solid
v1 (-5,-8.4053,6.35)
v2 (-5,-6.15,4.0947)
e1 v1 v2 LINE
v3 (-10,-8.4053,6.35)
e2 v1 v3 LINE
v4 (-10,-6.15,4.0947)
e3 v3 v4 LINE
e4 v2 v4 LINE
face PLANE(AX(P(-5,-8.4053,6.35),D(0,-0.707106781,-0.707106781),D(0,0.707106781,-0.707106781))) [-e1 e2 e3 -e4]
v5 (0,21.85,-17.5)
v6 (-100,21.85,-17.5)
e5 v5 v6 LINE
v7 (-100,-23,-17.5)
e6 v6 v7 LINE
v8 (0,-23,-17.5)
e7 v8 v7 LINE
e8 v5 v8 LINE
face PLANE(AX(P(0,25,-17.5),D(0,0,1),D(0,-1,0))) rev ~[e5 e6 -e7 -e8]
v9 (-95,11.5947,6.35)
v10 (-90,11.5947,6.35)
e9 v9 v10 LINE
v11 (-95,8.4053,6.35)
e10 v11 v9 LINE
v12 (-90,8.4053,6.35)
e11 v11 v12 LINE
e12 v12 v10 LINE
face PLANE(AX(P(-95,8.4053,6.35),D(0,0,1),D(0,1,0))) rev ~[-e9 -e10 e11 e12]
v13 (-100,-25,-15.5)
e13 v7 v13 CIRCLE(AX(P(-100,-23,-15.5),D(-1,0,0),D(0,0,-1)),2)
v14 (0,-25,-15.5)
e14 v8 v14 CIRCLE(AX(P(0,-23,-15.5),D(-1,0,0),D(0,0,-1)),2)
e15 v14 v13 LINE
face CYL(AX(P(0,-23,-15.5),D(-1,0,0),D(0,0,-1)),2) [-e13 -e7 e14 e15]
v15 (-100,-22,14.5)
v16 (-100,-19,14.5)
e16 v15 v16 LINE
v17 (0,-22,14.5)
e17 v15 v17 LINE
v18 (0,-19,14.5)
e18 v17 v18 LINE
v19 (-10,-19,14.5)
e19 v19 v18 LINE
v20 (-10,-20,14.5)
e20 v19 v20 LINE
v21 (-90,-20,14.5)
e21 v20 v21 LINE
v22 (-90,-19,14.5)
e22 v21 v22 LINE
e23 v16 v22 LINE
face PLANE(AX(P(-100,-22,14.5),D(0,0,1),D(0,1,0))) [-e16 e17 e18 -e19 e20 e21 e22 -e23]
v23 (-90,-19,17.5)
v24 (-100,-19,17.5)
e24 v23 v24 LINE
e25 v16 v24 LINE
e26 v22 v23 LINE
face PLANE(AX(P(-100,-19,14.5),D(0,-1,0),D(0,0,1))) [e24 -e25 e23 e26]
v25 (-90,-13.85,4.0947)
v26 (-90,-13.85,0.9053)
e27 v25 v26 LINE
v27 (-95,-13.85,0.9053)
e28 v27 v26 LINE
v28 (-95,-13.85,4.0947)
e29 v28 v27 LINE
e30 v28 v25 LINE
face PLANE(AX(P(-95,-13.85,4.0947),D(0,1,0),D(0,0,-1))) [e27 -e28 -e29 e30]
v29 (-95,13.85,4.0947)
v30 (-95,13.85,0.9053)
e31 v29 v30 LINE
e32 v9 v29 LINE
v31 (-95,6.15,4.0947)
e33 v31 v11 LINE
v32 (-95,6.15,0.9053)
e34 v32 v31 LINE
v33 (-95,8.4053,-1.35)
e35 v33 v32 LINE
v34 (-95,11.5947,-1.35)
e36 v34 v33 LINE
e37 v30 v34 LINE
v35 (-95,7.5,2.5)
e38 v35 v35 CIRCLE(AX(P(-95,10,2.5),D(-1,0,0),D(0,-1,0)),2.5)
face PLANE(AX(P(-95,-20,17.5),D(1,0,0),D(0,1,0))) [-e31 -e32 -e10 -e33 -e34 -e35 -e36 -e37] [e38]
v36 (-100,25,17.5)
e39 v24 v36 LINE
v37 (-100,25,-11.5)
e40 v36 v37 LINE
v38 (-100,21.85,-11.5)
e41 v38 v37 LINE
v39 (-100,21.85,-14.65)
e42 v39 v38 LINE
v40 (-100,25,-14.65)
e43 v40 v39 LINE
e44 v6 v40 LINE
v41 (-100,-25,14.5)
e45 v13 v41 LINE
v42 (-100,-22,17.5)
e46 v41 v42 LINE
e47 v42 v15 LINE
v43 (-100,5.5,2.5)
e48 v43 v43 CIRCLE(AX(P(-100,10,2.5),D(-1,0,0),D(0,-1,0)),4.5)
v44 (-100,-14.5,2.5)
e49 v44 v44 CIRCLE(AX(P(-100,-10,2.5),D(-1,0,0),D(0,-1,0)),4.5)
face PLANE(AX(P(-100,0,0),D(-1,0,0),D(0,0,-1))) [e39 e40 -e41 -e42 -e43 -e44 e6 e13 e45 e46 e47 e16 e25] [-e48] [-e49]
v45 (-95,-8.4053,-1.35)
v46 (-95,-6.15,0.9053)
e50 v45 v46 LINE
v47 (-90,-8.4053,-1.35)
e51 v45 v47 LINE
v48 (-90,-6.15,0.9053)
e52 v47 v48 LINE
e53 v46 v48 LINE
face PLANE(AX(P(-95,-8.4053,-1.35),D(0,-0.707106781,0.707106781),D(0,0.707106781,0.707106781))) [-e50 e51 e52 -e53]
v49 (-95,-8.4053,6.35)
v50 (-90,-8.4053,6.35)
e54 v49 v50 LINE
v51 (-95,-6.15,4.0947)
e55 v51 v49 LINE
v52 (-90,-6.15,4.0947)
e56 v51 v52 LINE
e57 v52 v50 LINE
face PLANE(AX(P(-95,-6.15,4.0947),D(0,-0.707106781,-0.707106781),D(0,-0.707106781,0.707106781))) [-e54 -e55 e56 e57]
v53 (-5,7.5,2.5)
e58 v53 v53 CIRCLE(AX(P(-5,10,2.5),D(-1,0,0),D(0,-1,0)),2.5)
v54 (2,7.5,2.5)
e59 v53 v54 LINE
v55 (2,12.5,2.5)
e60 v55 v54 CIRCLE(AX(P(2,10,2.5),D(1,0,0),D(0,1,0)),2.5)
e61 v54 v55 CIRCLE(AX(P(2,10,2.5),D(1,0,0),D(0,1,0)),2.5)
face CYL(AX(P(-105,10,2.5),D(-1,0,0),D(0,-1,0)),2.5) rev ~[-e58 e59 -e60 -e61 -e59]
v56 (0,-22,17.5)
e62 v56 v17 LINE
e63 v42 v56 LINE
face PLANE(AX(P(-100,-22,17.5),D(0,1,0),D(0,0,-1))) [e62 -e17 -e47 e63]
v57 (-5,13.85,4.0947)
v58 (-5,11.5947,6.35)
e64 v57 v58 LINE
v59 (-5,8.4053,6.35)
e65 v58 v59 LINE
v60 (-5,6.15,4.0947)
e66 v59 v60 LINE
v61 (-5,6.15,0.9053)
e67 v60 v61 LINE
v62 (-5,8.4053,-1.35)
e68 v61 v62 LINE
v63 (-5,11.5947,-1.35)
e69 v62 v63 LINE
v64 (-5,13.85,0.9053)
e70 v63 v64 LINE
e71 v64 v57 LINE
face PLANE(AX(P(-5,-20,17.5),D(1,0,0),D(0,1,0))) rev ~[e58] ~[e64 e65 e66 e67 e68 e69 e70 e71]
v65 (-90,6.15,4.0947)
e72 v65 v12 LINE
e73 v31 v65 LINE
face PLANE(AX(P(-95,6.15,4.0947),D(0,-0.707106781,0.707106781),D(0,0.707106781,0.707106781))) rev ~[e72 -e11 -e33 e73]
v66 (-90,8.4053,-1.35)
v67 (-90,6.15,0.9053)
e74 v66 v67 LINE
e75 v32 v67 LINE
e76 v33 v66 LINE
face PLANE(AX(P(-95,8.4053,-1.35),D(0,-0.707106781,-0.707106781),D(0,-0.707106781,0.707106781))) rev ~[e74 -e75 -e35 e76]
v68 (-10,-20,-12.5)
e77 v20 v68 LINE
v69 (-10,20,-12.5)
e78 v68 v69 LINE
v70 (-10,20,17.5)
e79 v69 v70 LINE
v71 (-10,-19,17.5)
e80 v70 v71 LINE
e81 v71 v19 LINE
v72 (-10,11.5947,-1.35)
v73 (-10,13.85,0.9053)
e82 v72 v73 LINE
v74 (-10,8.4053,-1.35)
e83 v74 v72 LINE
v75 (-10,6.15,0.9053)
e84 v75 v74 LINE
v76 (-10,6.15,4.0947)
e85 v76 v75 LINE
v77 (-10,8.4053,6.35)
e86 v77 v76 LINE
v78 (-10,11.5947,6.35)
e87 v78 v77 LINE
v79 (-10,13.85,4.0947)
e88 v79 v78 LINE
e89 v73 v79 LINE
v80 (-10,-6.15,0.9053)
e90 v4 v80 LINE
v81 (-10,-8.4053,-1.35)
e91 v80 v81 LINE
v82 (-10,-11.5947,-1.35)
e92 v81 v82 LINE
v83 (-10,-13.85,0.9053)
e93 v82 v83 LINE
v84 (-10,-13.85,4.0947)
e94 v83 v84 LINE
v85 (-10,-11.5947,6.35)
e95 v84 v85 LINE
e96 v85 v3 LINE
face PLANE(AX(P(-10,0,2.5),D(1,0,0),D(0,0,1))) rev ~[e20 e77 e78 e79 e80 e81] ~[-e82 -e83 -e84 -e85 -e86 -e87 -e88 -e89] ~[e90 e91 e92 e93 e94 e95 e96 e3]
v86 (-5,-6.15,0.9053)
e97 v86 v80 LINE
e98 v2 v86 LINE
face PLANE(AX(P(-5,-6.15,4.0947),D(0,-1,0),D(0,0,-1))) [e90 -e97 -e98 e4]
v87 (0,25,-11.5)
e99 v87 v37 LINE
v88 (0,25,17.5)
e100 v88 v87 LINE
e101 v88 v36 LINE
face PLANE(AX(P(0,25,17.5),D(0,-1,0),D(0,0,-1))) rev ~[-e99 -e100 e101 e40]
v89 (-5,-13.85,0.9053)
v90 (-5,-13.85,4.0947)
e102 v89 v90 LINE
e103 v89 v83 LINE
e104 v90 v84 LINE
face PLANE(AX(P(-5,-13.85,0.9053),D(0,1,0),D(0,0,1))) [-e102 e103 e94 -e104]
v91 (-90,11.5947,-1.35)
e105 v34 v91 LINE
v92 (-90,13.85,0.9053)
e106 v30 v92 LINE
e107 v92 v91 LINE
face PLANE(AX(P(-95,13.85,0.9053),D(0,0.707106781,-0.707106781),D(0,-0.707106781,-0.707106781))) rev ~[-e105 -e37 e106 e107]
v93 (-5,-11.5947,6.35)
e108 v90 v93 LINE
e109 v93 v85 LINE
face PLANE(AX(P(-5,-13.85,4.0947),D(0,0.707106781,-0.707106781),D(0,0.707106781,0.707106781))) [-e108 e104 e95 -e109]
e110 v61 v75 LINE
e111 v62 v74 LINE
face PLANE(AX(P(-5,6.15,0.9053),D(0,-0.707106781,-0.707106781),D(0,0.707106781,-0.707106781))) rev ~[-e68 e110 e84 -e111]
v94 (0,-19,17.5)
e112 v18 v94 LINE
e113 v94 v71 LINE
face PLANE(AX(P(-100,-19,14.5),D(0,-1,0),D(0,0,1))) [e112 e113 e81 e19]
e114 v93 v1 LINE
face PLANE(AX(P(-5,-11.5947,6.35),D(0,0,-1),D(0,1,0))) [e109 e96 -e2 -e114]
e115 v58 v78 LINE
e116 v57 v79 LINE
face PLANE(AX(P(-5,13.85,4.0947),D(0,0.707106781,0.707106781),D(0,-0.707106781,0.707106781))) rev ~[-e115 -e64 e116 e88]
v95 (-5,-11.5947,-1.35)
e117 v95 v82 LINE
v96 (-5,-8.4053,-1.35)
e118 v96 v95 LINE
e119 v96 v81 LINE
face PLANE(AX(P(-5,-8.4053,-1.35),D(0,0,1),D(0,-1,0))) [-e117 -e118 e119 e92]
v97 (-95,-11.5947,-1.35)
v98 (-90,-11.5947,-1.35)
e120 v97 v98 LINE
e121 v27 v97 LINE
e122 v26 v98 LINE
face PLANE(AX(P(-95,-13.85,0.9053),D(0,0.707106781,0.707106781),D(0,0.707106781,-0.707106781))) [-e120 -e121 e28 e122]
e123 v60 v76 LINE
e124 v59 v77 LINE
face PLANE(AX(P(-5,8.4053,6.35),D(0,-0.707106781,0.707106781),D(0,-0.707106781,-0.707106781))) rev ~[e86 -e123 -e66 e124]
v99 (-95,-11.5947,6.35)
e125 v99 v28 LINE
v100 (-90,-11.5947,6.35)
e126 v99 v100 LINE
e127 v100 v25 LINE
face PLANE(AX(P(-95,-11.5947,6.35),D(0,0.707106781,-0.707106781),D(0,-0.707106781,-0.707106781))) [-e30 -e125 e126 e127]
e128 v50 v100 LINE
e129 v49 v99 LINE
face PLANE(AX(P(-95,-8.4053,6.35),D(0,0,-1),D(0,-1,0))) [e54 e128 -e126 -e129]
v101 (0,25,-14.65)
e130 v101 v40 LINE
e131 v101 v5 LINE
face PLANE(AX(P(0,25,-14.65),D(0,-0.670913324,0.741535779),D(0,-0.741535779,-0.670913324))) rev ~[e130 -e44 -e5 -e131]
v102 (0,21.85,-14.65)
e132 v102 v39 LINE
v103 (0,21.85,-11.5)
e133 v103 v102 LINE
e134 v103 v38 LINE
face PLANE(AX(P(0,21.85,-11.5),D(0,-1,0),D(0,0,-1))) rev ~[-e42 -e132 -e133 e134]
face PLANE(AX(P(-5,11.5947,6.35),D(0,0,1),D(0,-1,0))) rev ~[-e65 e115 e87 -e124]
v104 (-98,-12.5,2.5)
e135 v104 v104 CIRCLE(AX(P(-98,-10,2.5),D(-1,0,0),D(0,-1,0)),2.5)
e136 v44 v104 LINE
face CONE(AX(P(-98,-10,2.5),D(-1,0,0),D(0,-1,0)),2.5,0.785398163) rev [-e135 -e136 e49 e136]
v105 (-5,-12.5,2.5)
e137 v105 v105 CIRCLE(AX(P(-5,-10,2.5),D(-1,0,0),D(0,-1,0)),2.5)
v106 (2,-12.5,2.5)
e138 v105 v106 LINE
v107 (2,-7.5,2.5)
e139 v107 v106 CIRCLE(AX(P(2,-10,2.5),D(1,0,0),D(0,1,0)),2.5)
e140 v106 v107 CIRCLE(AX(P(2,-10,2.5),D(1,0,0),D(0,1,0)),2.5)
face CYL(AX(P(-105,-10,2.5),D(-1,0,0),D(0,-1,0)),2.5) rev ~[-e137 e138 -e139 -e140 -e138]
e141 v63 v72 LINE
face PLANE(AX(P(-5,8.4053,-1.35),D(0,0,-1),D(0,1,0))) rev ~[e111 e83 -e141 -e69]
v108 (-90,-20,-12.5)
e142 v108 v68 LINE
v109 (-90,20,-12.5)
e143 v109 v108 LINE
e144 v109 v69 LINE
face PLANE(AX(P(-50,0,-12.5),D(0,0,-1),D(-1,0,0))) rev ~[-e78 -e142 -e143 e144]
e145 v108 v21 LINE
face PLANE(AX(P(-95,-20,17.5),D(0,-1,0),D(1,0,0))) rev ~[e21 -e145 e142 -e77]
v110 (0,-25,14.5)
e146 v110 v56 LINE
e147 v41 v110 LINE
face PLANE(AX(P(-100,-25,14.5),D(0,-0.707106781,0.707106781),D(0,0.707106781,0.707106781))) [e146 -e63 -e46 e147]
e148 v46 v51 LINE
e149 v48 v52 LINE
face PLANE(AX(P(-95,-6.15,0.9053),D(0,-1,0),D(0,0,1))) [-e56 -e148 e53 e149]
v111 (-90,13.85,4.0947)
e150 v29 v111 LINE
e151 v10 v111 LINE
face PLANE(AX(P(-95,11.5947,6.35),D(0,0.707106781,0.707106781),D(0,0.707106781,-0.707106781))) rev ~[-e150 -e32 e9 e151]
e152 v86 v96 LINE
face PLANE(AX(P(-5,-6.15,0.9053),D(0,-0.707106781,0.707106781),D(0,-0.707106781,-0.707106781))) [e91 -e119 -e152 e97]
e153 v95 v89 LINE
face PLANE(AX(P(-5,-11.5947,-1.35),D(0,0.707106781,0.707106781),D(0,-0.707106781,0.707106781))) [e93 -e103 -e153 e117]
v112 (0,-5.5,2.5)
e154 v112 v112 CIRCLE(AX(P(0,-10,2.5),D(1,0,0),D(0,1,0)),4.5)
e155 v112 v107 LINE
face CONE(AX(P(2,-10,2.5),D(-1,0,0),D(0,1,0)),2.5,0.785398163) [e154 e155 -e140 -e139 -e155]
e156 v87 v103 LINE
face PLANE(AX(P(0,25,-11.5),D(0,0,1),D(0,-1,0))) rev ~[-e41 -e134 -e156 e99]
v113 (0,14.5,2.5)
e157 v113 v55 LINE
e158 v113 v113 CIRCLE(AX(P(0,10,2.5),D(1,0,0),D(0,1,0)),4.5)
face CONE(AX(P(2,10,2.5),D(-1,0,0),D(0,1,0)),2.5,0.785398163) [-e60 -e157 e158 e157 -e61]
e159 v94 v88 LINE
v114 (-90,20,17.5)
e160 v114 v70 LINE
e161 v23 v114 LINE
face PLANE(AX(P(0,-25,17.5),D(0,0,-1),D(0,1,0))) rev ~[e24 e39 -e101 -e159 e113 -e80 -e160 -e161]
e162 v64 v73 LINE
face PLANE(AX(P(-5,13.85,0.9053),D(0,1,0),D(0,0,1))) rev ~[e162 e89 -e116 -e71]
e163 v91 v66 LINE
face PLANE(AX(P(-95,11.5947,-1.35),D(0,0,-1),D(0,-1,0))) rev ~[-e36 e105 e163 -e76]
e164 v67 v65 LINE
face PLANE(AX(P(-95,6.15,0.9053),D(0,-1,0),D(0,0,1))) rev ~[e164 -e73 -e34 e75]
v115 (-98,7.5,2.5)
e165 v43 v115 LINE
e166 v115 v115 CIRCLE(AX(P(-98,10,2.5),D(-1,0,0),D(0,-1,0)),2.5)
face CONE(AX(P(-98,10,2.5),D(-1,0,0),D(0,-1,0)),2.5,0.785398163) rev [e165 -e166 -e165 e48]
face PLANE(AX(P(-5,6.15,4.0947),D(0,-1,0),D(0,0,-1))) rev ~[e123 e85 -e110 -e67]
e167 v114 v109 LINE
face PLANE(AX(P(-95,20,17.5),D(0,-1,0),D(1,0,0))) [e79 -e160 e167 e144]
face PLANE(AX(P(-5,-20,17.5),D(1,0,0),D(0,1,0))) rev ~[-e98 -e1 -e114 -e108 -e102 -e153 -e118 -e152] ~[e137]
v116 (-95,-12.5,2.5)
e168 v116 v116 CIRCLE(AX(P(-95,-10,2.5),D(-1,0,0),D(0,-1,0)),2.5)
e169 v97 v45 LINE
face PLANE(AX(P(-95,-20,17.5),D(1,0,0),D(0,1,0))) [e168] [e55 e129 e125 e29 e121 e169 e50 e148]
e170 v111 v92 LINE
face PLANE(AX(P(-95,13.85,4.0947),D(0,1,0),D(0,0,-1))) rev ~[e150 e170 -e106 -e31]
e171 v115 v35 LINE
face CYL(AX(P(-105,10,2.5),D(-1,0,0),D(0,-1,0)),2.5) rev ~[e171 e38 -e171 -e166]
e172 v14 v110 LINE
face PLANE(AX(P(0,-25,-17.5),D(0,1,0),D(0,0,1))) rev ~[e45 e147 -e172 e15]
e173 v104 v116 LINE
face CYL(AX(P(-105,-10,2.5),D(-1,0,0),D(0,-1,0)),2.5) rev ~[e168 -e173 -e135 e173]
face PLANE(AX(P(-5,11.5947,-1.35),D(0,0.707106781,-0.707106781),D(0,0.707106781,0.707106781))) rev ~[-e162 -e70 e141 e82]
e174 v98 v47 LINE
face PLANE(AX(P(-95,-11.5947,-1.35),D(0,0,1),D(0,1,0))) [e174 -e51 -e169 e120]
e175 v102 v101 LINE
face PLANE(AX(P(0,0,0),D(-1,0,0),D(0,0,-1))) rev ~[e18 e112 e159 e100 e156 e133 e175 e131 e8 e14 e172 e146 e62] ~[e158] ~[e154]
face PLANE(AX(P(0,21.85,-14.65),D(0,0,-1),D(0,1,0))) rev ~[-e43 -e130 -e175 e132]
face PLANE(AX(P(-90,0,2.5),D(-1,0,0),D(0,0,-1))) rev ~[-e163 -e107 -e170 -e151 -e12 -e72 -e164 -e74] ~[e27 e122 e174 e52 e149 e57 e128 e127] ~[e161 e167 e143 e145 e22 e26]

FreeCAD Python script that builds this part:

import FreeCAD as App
import Part
import Sketcher

V = App.Vector
Q = App.Units.Quantity


def edges_at(feature, points):
    """Names of the edges that pass closest to the given points."""
    edges = feature.Shape.Edges
    near = lambda p: min(range(len(edges)), key=lambda i: edges[i].distToShape(Part.Vertex(*p))[0])
    return sorted({f"Edge{near(p) + 1}" for p in points})

doc = App.newDocument("Part")
body = doc.addObject("PartDesign::Body", "Body")

# Sketch on YZ plane
sketch1 = body.newObject("Sketcher::SketchObject", "Sketch")
sketch1.AttachmentSupport = (doc.getObject("YZ_Plane"), [""])
sketch1.MapMode = "FlatFace"
sketch1.addGeometry(Part.LineSegment(V(25, -17.5, 0), V(-25, -17.5, 0)), False)
sketch1.addGeometry(Part.LineSegment(V(-25, -17.5, 0), V(-25, 17.5, 0)), False)
sketch1.addGeometry(Part.LineSegment(V(-25, 17.5, 0), V(25, 17.5, 0)), False)
sketch1.addGeometry(Part.LineSegment(V(25, 17.5, 0), V(25, -17.5, 0)), False)
sketch1.addConstraint(Sketcher.Constraint("Coincident", 0, 2, 1, 1))
sketch1.addConstraint(Sketcher.Constraint("Coincident", 1, 2, 2, 1))
sketch1.addConstraint(Sketcher.Constraint("Coincident", 2, 2, 3, 1))
sketch1.addConstraint(Sketcher.Constraint("Coincident", 3, 2, 0, 1))
sketch1.addConstraint(Sketcher.Constraint("Horizontal", 0))
sketch1.addConstraint(Sketcher.Constraint("Vertical", 1))
sketch1.addConstraint(Sketcher.Constraint("Horizontal", 2))
sketch1.addConstraint(Sketcher.Constraint("Vertical", 3))
sketch1.addConstraint(Sketcher.Constraint("Symmetric", 0, 2, 2, 2, -1, 1))
sketch1.addConstraint(Sketcher.Constraint("DistanceX", 0, 2, 0, 1, 50.0))
sketch1.addConstraint(Sketcher.Constraint("DistanceY", 1, 1, 1, 2, 35.0))
pad1 = body.newObject("PartDesign::Pad", "Pad")
pad1.Profile = sketch1
pad1.Length = 100
pad1.Reversed = True

# Sketch on XY plane
sketch2 = body.newObject("Sketcher::SketchObject", "Sketch001")
sketch2.AttachmentSupport = (doc.getObject("XY_Plane"), [""])
sketch2.MapMode = "FlatFace"
sketch2.AttachmentOffset = App.Placement(V(0, 0, 17.5), App.Rotation())
sketch2.addGeometry(Part.LineSegment(V(-5, 20, 0), V(-95, 20, 0)), False)
sketch2.addGeometry(Part.LineSegment(V(-95, 20, 0), V(-95, -20, 0)), False)
sketch2.addGeometry(Part.LineSegment(V(-95, -20, 0), V(-5, -20, 0)), False)
sketch2.addGeometry(Part.LineSegment(V(-5, -20, 0), V(-5, 20, 0)), False)
sketch2.addConstraint(Sketcher.Constraint("Coincident", 0, 2, 1, 1))
sketch2.addConstraint(Sketcher.Constraint("Coincident", 1, 2, 2, 1))
sketch2.addConstraint(Sketcher.Constraint("Coincident", 2, 2, 3, 1))
sketch2.addConstraint(Sketcher.Constraint("Coincident", 3, 2, 0, 1))
sketch2.addConstraint(Sketcher.Constraint("Horizontal", 0))
sketch2.addConstraint(Sketcher.Constraint("Vertical", 1))
sketch2.addConstraint(Sketcher.Constraint("Horizontal", 2))
sketch2.addConstraint(Sketcher.Constraint("Vertical", 3))
sketch2.addConstraint(Sketcher.Constraint("DistanceX", 0, 2, 0, 1, 90.0))
sketch2.addConstraint(Sketcher.Constraint("DistanceY", 1, 2, 1, 1, 40.0))
sketch2.addConstraint(Sketcher.Constraint("DistanceX", 0, 2, -1, 1, 95.0))
sketch2.addConstraint(Sketcher.Constraint("DistanceY", -1, 1, 0, 2, 20.0))
pocket1 = body.newObject("PartDesign::Pocket", "Pocket")
pocket1.Profile = sketch2
pocket1.Length = 30

# Sketch on YZ plane
sketch3 = body.newObject("Sketcher::SketchObject", "Sketch002")
sketch3.AttachmentSupport = (doc.getObject("YZ_Plane"), [""])
sketch3.MapMode = "FlatFace"
sketch3.AttachmentOffset = App.Placement(V(0, 0, -5), App.Rotation())
sketch3.addGeometry(Part.LineSegment(V(20, -12.5, 0), V(-20, -12.5, 0)), False)
sketch3.addGeometry(Part.LineSegment(V(-20, -12.5, 0), V(-20, 17.5, 0)), False)
sketch3.addGeometry(Part.LineSegment(V(-20, 17.5, 0), V(20, 17.5, 0)), False)
sketch3.addGeometry(Part.LineSegment(V(20, 17.5, 0), V(20, -12.5, 0)), False)
sketch3.addGeometry(Part.LineSegment(V(-8.4053, 6.35, 0), V(-11.5947, 6.35, 0)), False)
sketch3.addGeometry(Part.LineSegment(V(-11.5947, 6.35, 0), V(-13.85, 4.0947, 0)), False)
sketch3.addGeometry(Part.LineSegment(V(-13.85, 4.0947, 0), V(-13.85, 0.9053, 0)), False)
sketch3.addGeometry(Part.LineSegment(V(-13.85, 0.9053, 0), V(-11.5947, -1.35, 0)), False)
sketch3.addGeometry(Part.LineSegment(V(-11.5947, -1.35, 0), V(-8.4053, -1.35, 0)), False)
sketch3.addGeometry(Part.LineSegment(V(-8.4053, -1.35, 0), V(-6.15, 0.9053, 0)), False)
sketch3.addGeometry(Part.LineSegment(V(-6.15, 0.9053, 0), V(-6.15, 4.0947, 0)), False)
sketch3.addGeometry(Part.LineSegment(V(-6.15, 4.0947, 0), V(-8.4053, 6.35, 0)), False)
sketch3.addGeometry(Part.LineSegment(V(13.85, 4.0947, 0), V(11.5947, 6.35, 0)), False)
sketch3.addGeometry(Part.LineSegment(V(11.5947, 6.35, 0), V(8.4053, 6.35, 0)), False)
sketch3.addGeometry(Part.LineSegment(V(8.4053, 6.35, 0), V(6.15, 4.0947, 0)), False)
sketch3.addGeometry(Part.LineSegment(V(6.15, 4.0947, 0), V(6.15, 0.9053, 0)), False)
sketch3.addGeometry(Part.LineSegment(V(6.15, 0.9053, 0), V(8.4053, -1.35, 0)), False)
sketch3.addGeometry(Part.LineSegment(V(8.4053, -1.35, 0), V(11.5947, -1.35, 0)), False)
sketch3.addGeometry(Part.LineSegment(V(11.5947, -1.35, 0), V(13.85, 0.9053, 0)), False)
sketch3.addGeometry(Part.LineSegment(V(13.85, 0.9053, 0), V(13.85, 4.0947, 0)), False)
sketch3.addConstraint(Sketcher.Constraint("Coincident", 0, 2, 1, 1))
sketch3.addConstraint(Sketcher.Constraint("Coincident", 1, 2, 2, 1))
sketch3.addConstraint(Sketcher.Constraint("Coincident", 2, 2, 3, 1))
sketch3.addConstraint(Sketcher.Constraint("Coincident", 3, 2, 0, 1))
sketch3.addConstraint(Sketcher.Constraint("Coincident", 4, 2, 5, 1))
sketch3.addConstraint(Sketcher.Constraint("Coincident", 5, 2, 6, 1))
sketch3.addConstraint(Sketcher.Constraint("Coincident", 6, 2, 7, 1))
sketch3.addConstraint(Sketcher.Constraint("Coincident", 7, 2, 8, 1))
sketch3.addConstraint(Sketcher.Constraint("Coincident", 8, 2, 9, 1))
sketch3.addConstraint(Sketcher.Constraint("Coincident", 9, 2, 10, 1))
sketch3.addConstraint(Sketcher.Constraint("Coincident", 10, 2, 11, 1))
sketch3.addConstraint(Sketcher.Constraint("Coincident", 11, 2, 4, 1))
sketch3.addConstraint(Sketcher.Constraint("Coincident", 12, 2, 13, 1))
sketch3.addConstraint(Sketcher.Constraint("Coincident", 13, 2, 14, 1))
sketch3.addConstraint(Sketcher.Constraint("Coincident", 14, 2, 15, 1))
sketch3.addConstraint(Sketcher.Constraint("Coincident", 15, 2, 16, 1))
sketch3.addConstraint(Sketcher.Constraint("Coincident", 16, 2, 17, 1))
sketch3.addConstraint(Sketcher.Constraint("Coincident", 17, 2, 18, 1))
sketch3.addConstraint(Sketcher.Constraint("Coincident", 18, 2, 19, 1))
sketch3.addConstraint(Sketcher.Constraint("Coincident", 19, 2, 12, 1))
sketch3.addConstraint(Sketcher.Constraint("Horizontal", 0))
sketch3.addConstraint(Sketcher.Constraint("Vertical", 1))
sketch3.addConstraint(Sketcher.Constraint("Horizontal", 2))
sketch3.addConstraint(Sketcher.Constraint("Vertical", 3))
sketch3.addConstraint(Sketcher.Constraint("Horizontal", 4))
sketch3.addConstraint(Sketcher.Constraint("Vertical", 6))
sketch3.addConstraint(Sketcher.Constraint("Horizontal", 8))
sketch3.addConstraint(Sketcher.Constraint("Vertical", 10))
sketch3.addConstraint(Sketcher.Constraint("Horizontal", 13))
sketch3.addConstraint(Sketcher.Constraint("Vertical", 15))
sketch3.addConstraint(Sketcher.Constraint("Horizontal", 17))
sketch3.addConstraint(Sketcher.Constraint("Vertical", 19))
sketch3.addConstraint(Sketcher.Constraint("Symmetric", 4, 2, 12, 2, -2))
sketch3.addConstraint(Sketcher.Constraint("Symmetric", 10, 2, 14, 2, -2))
sketch3.addConstraint(Sketcher.Constraint("Symmetric", 8, 2, 16, 2, -2))
sketch3.addConstraint(Sketcher.Constraint("Symmetric", 6, 2, 18, 2, -2))
sketch3.addConstraint(Sketcher.Constraint("Perpendicular", 5, 7))
sketch3.addConstraint(Sketcher.Constraint("Perpendicular", 7, 9))
sketch3.addConstraint(Sketcher.Constraint("Perpendicular", 9, 11))
sketch3.addConstraint(Sketcher.Constraint("Parallel", 11, 12))
sketch3.addConstraint(Sketcher.Constraint("Perpendicular", 12, 14))
sketch3.addConstraint(Sketcher.Constraint("Perpendicular", 14, 16))
sketch3.addConstraint(Sketcher.Constraint("Perpendicular", 16, 18))
sketch3.addConstraint(Sketcher.Constraint("Horizontal", 6, 2, 9, 2))
sketch3.addConstraint(Sketcher.Constraint("Horizontal", 5, 2, 10, 2))
sketch3.addConstraint(Sketcher.Constraint("Horizontal", 9, 2, 15, 2))
sketch3.addConstraint(Sketcher.Constraint("Vertical", 4, 2, 7, 2))
sketch3.addConstraint(Sketcher.Constraint("Equal", 17, 6))
sketch3.addConstraint(Sketcher.Constraint("DistanceX", 0, 2, 0, 1, 40.0))
sketch3.addConstraint(Sketcher.Constraint("DistanceY", 1, 1, 1, 2, 30.0))
sketch3.addConstraint(Sketcher.Constraint("DistanceX", 0, 2, -1, 1, 20.0))
sketch3.addConstraint(Sketcher.Constraint("DistanceX", 11, 2, 12, 2, 20.0))
sketch3.addConstraint(Sketcher.Constraint("DistanceY", 0, 2, -1, 1, 12.5))
sketch3.addConstraint(Sketcher.Constraint("DistanceY", 7, 2, 4, 2, 7.7))
sketch3.addConstraint(Sketcher.Constraint("DistanceY", -1, 1, 4, 2, 6.35))
sketch3.addConstraint(Sketcher.Constraint("DistanceX", 4, 2, 4, 1, 3.1894))
pad2 = body.newObject("PartDesign::Pad", "Pad001")
pad2.Profile = sketch3
pad2.Length = 5
pad2.Reversed = True

# Sketch on YZ plane
sketch4 = body.newObject("Sketcher::SketchObject", "Sketch003")
sketch4.AttachmentSupport = (doc.getObject("YZ_Plane"), [""])
sketch4.MapMode = "FlatFace"
sketch4.addGeometry(Part.Circle(V(-10, 2.5, 0), V(0, 0, 1), 2.5), False)
sketch4.addGeometry(Part.Circle(V(10, 2.5, 0), V(0, 0, 1), 2.5), False)
sketch4.addConstraint(Sketcher.Constraint("Equal", 0, 1))
sketch4.addConstraint(Sketcher.Constraint("Symmetric", 0, 3, 1, 3, -2))
sketch4.addConstraint(Sketcher.Constraint("Diameter", 0, 5.0))
sketch4.addConstraint(Sketcher.Constraint("DistanceX", 0, 3, -1, 1, 10.0))
sketch4.addConstraint(Sketcher.Constraint("DistanceY", -1, 1, 0, 3, 2.5))
pad3 = body.newObject("PartDesign::Pad", "Pad002")
pad3.Profile = sketch4
pad3.Length = 5
doc.recompute()

chamfer = body.newObject("PartDesign::Chamfer", "Chamfer")
chamfer.Base = (pad3, edges_at(pad3, [(0, 7.5, 2.5), (0, -12.5, 2.5)]))
chamfer.Size = 2

# Sketch on YZ plane
sketch5 = body.newObject("Sketcher::SketchObject", "Sketch004")
sketch5.AttachmentSupport = (doc.getObject("YZ_Plane"), [""])
sketch5.MapMode = "FlatFace"
sketch5.AttachmentOffset = App.Placement(V(0, 0, -100), App.Rotation())
sketch5.addGeometry(Part.Circle(V(10, 2.5, 0), V(0, 0, 1), 2.5), False)
sketch5.addGeometry(Part.Circle(V(-10, 2.5, 0), V(0, 0, 1), 2.5), False)
sketch5.addConstraint(Sketcher.Constraint("Equal", 0, 1))
sketch5.addConstraint(Sketcher.Constraint("Symmetric", 0, 3, 1, 3, -2))
sketch5.addConstraint(Sketcher.Constraint("Diameter", 0, 5.0))
sketch5.addConstraint(Sketcher.Constraint("DistanceX", -1, 1, 0, 3, 10.0))
sketch5.addConstraint(Sketcher.Constraint("DistanceY", -1, 1, 0, 3, 2.5))
pad4 = body.newObject("PartDesign::Pad", "Pad003")
pad4.Profile = sketch5
pad4.Length = 5
pad4.Reversed = True

# Sketch on YZ plane
sketch6 = body.newObject("Sketcher::SketchObject", "Sketch005")
sketch6.AttachmentSupport = (doc.getObject("YZ_Plane"), [""])
sketch6.MapMode = "FlatFace"
sketch6.AttachmentOffset = App.Placement(V(0, 0, -105), App.Rotation())
sketch6.addGeometry(Part.Circle(V(10, 2.5, 0), V(0, 0, 1), 2.5), False)
sketch6.addGeometry(Part.Circle(V(-10, 2.5, 0), V(0, 0, 1), 2.5), False)
sketch6.addConstraint(Sketcher.Constraint("Equal", 0, 1))
sketch6.addConstraint(Sketcher.Constraint("Symmetric", 0, 3, 1, 3, -2))
sketch6.addConstraint(Sketcher.Constraint("Diameter", 0, 5.0))
sketch6.addConstraint(Sketcher.Constraint("DistanceX", -1, 1, 0, 3, 10.0))
sketch6.addConstraint(Sketcher.Constraint("DistanceY", -1, 1, 0, 3, 2.5))
pocket2 = body.newObject("PartDesign::Pocket", "Pocket001")
pocket2.Profile = sketch6
pocket2.Length = 159
pocket2.Reversed = True

# Sketch on YZ plane
sketch7 = body.newObject("Sketcher::SketchObject", "Sketch006")
sketch7.AttachmentSupport = (doc.getObject("YZ_Plane"), [""])
sketch7.MapMode = "FlatFace"
sketch7.AttachmentOffset = App.Placement(V(0, 0, -95), App.Rotation())
sketch7.addGeometry(Part.LineSegment(V(-20, -12.5, 0), V(20, -12.5, 0)), False)
sketch7.addGeometry(Part.LineSegment(V(20, -12.5, 0), V(20, 17.5, 0)), False)
sketch7.addGeometry(Part.LineSegment(V(20, 17.5, 0), V(-20, 17.5, 0)), False)
sketch7.addGeometry(Part.LineSegment(V(-20, 17.5, 0), V(-20, -12.5, 0)), False)
sketch7.addGeometry(Part.LineSegment(V(13.85, 0.9053, 0), V(11.5947, -1.35, 0)), False)
sketch7.addGeometry(Part.LineSegment(V(11.5947, -1.35, 0), V(8.4053, -1.35, 0)), False)
sketch7.addGeometry(Part.LineSegment(V(8.4053, -1.35, 0), V(6.15, 0.9053, 0)), False)
sketch7.addGeometry(Part.LineSegment(V(6.15, 0.9053, 0), V(6.15, 4.0947, 0)), False)
sketch7.addGeometry(Part.LineSegment(V(6.15, 4.0947, 0), V(8.4053, 6.35, 0)), False)
sketch7.addGeometry(Part.LineSegment(V(8.4053, 6.35, 0), V(11.5947, 6.35, 0)), False)
sketch7.addGeometry(Part.LineSegment(V(11.5947, 6.35, 0), V(13.85, 4.0947, 0)), False)
sketch7.addGeometry(Part.LineSegment(V(13.85, 4.0947, 0), V(13.85, 0.9053, 0)), False)
sketch7.addGeometry(Part.LineSegment(V(-6.15, 4.0947, 0), V(-6.15, 0.9053, 0)), False)
sketch7.addGeometry(Part.LineSegment(V(-6.15, 0.9053, 0), V(-8.4053, -1.35, 0)), False)
sketch7.addGeometry(Part.LineSegment(V(-8.4053, -1.35, 0), V(-11.5947, -1.35, 0)), False)
sketch7.addGeometry(Part.LineSegment(V(-11.5947, -1.35, 0), V(-13.85, 0.9053, 0)), False)
sketch7.addGeometry(Part.LineSegment(V(-13.85, 0.9053, 0), V(-13.85, 4.0947, 0)), False)
sketch7.addGeometry(Part.LineSegment(V(-13.85, 4.0947, 0), V(-11.5947, 6.35, 0)), False)
sketch7.addGeometry(Part.LineSegment(V(-11.5947, 6.35, 0), V(-8.4053, 6.35, 0)), False)
sketch7.addGeometry(Part.LineSegment(V(-8.4053, 6.35, 0), V(-6.15, 4.0947, 0)), False)
sketch7.addConstraint(Sketcher.Constraint("Coincident", 0, 2, 1, 1))
sketch7.addConstraint(Sketcher.Constraint("Coincident", 1, 2, 2, 1))
sketch7.addConstraint(Sketcher.Constraint("Coincident", 2, 2, 3, 1))
sketch7.addConstraint(Sketcher.Constraint("Coincident", 3, 2, 0, 1))
sketch7.addConstraint(Sketcher.Constraint("Coincident", 4, 2, 5, 1))
sketch7.addConstraint(Sketcher.Constraint("Coincident", 5, 2, 6, 1))
sketch7.addConstraint(Sketcher.Constraint("Coincident", 6, 2, 7, 1))
sketch7.addConstraint(Sketcher.Constraint("Coincident", 7, 2, 8, 1))
sketch7.addConstraint(Sketcher.Constraint("Coincident", 8, 2, 9, 1))
sketch7.addConstraint(Sketcher.Constraint("Coincident", 9, 2, 10, 1))
sketch7.addConstraint(Sketcher.Constraint("Coincident", 10, 2, 11, 1))
sketch7.addConstraint(Sketcher.Constraint("Coincident", 11, 2, 4, 1))
sketch7.addConstraint(Sketcher.Constraint("Coincident", 12, 2, 13, 1))
sketch7.addConstraint(Sketcher.Constraint("Coincident", 13, 2, 14, 1))
sketch7.addConstraint(Sketcher.Constraint("Coincident", 14, 2, 15, 1))
sketch7.addConstraint(Sketcher.Constraint("Coincident", 15, 2, 16, 1))
sketch7.addConstraint(Sketcher.Constraint("Coincident", 16, 2, 17, 1))
sketch7.addConstraint(Sketcher.Constraint("Coincident", 17, 2, 18, 1))
sketch7.addConstraint(Sketcher.Constraint("Coincident", 18, 2, 19, 1))
sketch7.addConstraint(Sketcher.Constraint("Coincident", 19, 2, 12, 1))
sketch7.addConstraint(Sketcher.Constraint("Horizontal", 0))
sketch7.addConstraint(Sketcher.Constraint("Vertical", 1))
sketch7.addConstraint(Sketcher.Constraint("Horizontal", 2))
sketch7.addConstraint(Sketcher.Constraint("Vertical", 3))
sketch7.addConstraint(Sketcher.Constraint("Horizontal", 5))
sketch7.addConstraint(Sketcher.Constraint("Vertical", 7))
sketch7.addConstraint(Sketcher.Constraint("Horizontal", 9))
sketch7.addConstraint(Sketcher.Constraint("Vertical", 11))
sketch7.addConstraint(Sketcher.Constraint("Vertical", 12))
sketch7.addConstraint(Sketcher.Constraint("Horizontal", 14))
sketch7.addConstraint(Sketcher.Constraint("Vertical", 16))
sketch7.addConstraint(Sketcher.Constraint("Horizontal", 18))
sketch7.addConstraint(Sketcher.Constraint("Symmetric", 6, 2, 12, 2, -2))
sketch7.addConstraint(Sketcher.Constraint("Symmetric", 5, 2, 13, 2, -2))
sketch7.addConstraint(Sketcher.Constraint("Symmetric", 11, 2, 15, 2, -2))
sketch7.addConstraint(Sketcher.Constraint("Symmetric", 9, 2, 17, 2, -2))
sketch7.addConstraint(Sketcher.Constraint("Perpendicular", 4, 6))
sketch7.addConstraint(Sketcher.Constraint("Perpendicular", 6, 8))
sketch7.addConstraint(Sketcher.Constraint("Perpendicular", 8, 10))
sketch7.addConstraint(Sketcher.Constraint("Perpendicular", 10, 13))
sketch7.addConstraint(Sketcher.Constraint("Perpendicular", 13, 15))
sketch7.addConstraint(Sketcher.Constraint("Perpendicular", 15, 17))
sketch7.addConstraint(Sketcher.Constraint("Perpendicular", 17, 19))
sketch7.addConstraint(Sketcher.Constraint("Horizontal", 7, 2, 10, 2))
sketch7.addConstraint(Sketcher.Constraint("Horizontal", 6, 2, 11, 2))
sketch7.addConstraint(Sketcher.Constraint("Horizontal", 16, 2, 19, 2))
sketch7.addConstraint(Sketcher.Constraint("Vertical", 5, 2, 8, 2))
sketch7.addConstraint(Sketcher.Constraint("Equal", 18, 7))
sketch7.addConstraint(Sketcher.Constraint("DistanceX", 0, 1, 0, 2, 40.0))
sketch7.addConstraint(Sketcher.Constraint("DistanceY", 1, 1, 1, 2, 30.0))
sketch7.addConstraint(Sketcher.Constraint("DistanceX", -1, 1, 0, 2, 20.0))
sketch7.addConstraint(Sketcher.Constraint("DistanceY", 0, 2, -1, 1, 12.5))
sketch7.addConstraint(Sketcher.Constraint("DistanceY", 5, 2, 8, 2, 7.7))
sketch7.addConstraint(Sketcher.Constraint("DistanceX", 12, 2, 6, 2, 12.3))
sketch7.addConstraint(Sketcher.Constraint("DistanceY", 4, 2, -1, 1, 1.35))
sketch7.addConstraint(Sketcher.Constraint("DistanceX", 5, 2, 5, 1, 3.1894))
pad5 = body.newObject("PartDesign::Pad", "Pad004")
pad5.Profile = sketch7
pad5.Length = 5

# Sketch on YZ plane
sketch8 = body.newObject("Sketcher::SketchObject", "Sketch007")
sketch8.AttachmentSupport = (doc.getObject("YZ_Plane"), [""])
sketch8.MapMode = "FlatFace"
sketch8.addGeometry(Part.LineSegment(V(29.169, -11.5, 0), V(21.85, -11.5, 0)), False)
sketch8.addGeometry(Part.LineSegment(V(21.85, -11.5, 0), V(21.85, -14.65, 0)), False)
sketch8.addGeometry(Part.LineSegment(V(21.85, -14.65, 0), V(25, -14.65, 0)), False)
sketch8.addGeometry(Part.LineSegment(V(25, -14.65, 0), V(21.85, -17.5, 0)), False)
sketch8.addGeometry(Part.LineSegment(V(21.85, -17.5, 0), V(21.85, -20.916, 0)), False)
sketch8.addGeometry(Part.LineSegment(V(21.85, -20.916, 0), V(29.169, -20.916, 0)), False)
sketch8.addGeometry(Part.LineSegment(V(29.169, -20.916, 0), V(29.169, -11.5, 0)), False)
sketch8.addConstraint(Sketcher.Constraint("Coincident", 0, 2, 1, 1))
sketch8.addConstraint(Sketcher.Constraint("Coincident", 1, 2, 2, 1))
sketch8.addConstraint(Sketcher.Constraint("Coincident", 2, 2, 3, 1))
sketch8.addConstraint(Sketcher.Constraint("Coincident", 3, 2, 4, 1))
sketch8.addConstraint(Sketcher.Constraint("Coincident", 4, 2, 5, 1))
sketch8.addConstraint(Sketcher.Constraint("Coincident", 5, 2, 6, 1))
sketch8.addConstraint(Sketcher.Constraint("Coincident", 6, 2, 0, 1))
sketch8.addConstraint(Sketcher.Constraint("Horizontal", 0))
sketch8.addConstraint(Sketcher.Constraint("Vertical", 1))
sketch8.addConstraint(Sketcher.Constraint("Horizontal", 2))
sketch8.addConstraint(Sketcher.Constraint("Vertical", 4))
sketch8.addConstraint(Sketcher.Constraint("Horizontal", 5))
sketch8.addConstraint(Sketcher.Constraint("Vertical", 6))
sketch8.addConstraint(Sketcher.Constraint("Vertical", 1, 2, 3, 2))
sketch8.addConstraint(Sketcher.Constraint("Equal", 2, 1))
sketch8.addConstraint(Sketcher.Constraint("DistanceX", -1, 1, 2, 2, 25.0))
sketch8.addConstraint(Sketcher.Constraint("DistanceY", 3, 2, 0, 2, 6.0))
sketch8.addConstraint(Sketcher.Constraint("DistanceX", 2, 1, 2, 2, 3.15))
sketch8.addConstraint(Sketcher.Constraint("DistanceY", 0, 2, -1, 1, 11.5))
sketch8.addConstraint(Sketcher.Constraint("DistanceX", 0, 2, 0, 1, 7.319))
sketch8.addConstraint(Sketcher.Constraint("DistanceY", 4, 2, 4, 1, 3.416))
pocket3 = body.newObject("PartDesign::Pocket", "Pocket002")
pocket3.Profile = sketch8
pocket3.Length = 112
doc.recompute()

fillet = body.newObject("PartDesign::Fillet", "Fillet")
fillet.Base = (pocket3, edges_at(pocket3, [(-50, -25, -17.5)]))
fillet.Radius = 2
doc.recompute()

chamfer2 = body.newObject("PartDesign::Chamfer", "Chamfer001")
chamfer2.Base = (fillet, edges_at(fillet, [(-100, -10, 0), (-100, 10, 0)]))
chamfer2.Size = 2

# Sketch on YZ plane
sketch9 = body.newObject("Sketcher::SketchObject", "Sketch008")
sketch9.AttachmentSupport = (doc.getObject("YZ_Plane"), [""])
sketch9.MapMode = "FlatFace"
sketch9.AttachmentOffset = App.Placement(V(0, 0, -100), App.Rotation())
sketch9.addGeometry(Part.LineSegment(V(-22, 14.5, 0), V(-22, 17.5, 0)), False)
sketch9.addGeometry(Part.LineSegment(V(-22, 17.5, 0), V(-25, 14.5, 0)), False)
sketch9.addGeometry(Part.LineSegment(V(-25, 14.5, 0), V(-27.2533, 14.5, 0)), False)
sketch9.addGeometry(Part.LineSegment(V(-27.2533, 14.5, 0), V(-27.2533, 20.0192, 0)), False)
sketch9.addGeometry(Part.LineSegment(V(-27.2533, 20.0192, 0), V(-19, 20.07, 0)), False)
sketch9.addGeometry(Part.LineSegment(V(-19, 20.07, 0), V(-19, 14.5, 0)), False)
sketch9.addGeometry(Part.LineSegment(V(-19, 14.5, 0), V(-22, 14.5, 0)), False)
sketch9.addConstraint(Sketcher.Constraint("Coincident", 0, 2, 1, 1))
sketch9.addConstraint(Sketcher.Constraint("Coincident", 1, 2, 2, 1))
sketch9.addConstraint(Sketcher.Constraint("Coincident", 2, 2, 3, 1))
sketch9.addConstraint(Sketcher.Constraint("Coincident", 3, 2, 4, 1))
sketch9.addConstraint(Sketcher.Constraint("Coincident", 4, 2, 5, 1))
sketch9.addConstraint(Sketcher.Constraint("Coincident", 5, 2, 6, 1))
sketch9.addConstraint(Sketcher.Constraint("Coincident", 6, 2, 0, 1))
sketch9.addConstraint(Sketcher.Constraint("Vertical", 0))
sketch9.addConstraint(Sketcher.Constraint("Horizontal", 2))
sketch9.addConstraint(Sketcher.Constraint("Vertical", 3))
sketch9.addConstraint(Sketcher.Constraint("Vertical", 5))
sketch9.addConstraint(Sketcher.Constraint("Horizontal", 6))
sketch9.addConstraint(Sketcher.Constraint("Horizontal", 2, 2, 5, 2))
sketch9.addConstraint(Sketcher.Constraint("Equal", 6, 0))
sketch9.addConstraint(Sketcher.Constraint("DistanceX", 6, 2, 6, 1, 3.0))
sketch9.addConstraint(Sketcher.Constraint("Angle", 1, Q("-135 deg")))
sketch9.addConstraint(Sketcher.Constraint("DistanceX", 0, 2, -1, 1, 22.0))
sketch9.addConstraint(Sketcher.Constraint("DistanceY", 5, 2, 5, 1, 5.57))
sketch9.addConstraint(Sketcher.Constraint("DistanceY", -1, 1, 0, 2, 17.5))
sketch9.addConstraint(Sketcher.Constraint("DistanceX", 2, 2, 2, 1, 2.2533))
sketch9.addConstraint(Sketcher.Constraint("DistanceY", 3, 1, 3, 2, 5.5192))
pocket4 = body.newObject("PartDesign::Pocket", "Pocket003")
pocket4.Profile = sketch9
pocket4.Length = 234
pocket4.Reversed = True

doc.recompute()
